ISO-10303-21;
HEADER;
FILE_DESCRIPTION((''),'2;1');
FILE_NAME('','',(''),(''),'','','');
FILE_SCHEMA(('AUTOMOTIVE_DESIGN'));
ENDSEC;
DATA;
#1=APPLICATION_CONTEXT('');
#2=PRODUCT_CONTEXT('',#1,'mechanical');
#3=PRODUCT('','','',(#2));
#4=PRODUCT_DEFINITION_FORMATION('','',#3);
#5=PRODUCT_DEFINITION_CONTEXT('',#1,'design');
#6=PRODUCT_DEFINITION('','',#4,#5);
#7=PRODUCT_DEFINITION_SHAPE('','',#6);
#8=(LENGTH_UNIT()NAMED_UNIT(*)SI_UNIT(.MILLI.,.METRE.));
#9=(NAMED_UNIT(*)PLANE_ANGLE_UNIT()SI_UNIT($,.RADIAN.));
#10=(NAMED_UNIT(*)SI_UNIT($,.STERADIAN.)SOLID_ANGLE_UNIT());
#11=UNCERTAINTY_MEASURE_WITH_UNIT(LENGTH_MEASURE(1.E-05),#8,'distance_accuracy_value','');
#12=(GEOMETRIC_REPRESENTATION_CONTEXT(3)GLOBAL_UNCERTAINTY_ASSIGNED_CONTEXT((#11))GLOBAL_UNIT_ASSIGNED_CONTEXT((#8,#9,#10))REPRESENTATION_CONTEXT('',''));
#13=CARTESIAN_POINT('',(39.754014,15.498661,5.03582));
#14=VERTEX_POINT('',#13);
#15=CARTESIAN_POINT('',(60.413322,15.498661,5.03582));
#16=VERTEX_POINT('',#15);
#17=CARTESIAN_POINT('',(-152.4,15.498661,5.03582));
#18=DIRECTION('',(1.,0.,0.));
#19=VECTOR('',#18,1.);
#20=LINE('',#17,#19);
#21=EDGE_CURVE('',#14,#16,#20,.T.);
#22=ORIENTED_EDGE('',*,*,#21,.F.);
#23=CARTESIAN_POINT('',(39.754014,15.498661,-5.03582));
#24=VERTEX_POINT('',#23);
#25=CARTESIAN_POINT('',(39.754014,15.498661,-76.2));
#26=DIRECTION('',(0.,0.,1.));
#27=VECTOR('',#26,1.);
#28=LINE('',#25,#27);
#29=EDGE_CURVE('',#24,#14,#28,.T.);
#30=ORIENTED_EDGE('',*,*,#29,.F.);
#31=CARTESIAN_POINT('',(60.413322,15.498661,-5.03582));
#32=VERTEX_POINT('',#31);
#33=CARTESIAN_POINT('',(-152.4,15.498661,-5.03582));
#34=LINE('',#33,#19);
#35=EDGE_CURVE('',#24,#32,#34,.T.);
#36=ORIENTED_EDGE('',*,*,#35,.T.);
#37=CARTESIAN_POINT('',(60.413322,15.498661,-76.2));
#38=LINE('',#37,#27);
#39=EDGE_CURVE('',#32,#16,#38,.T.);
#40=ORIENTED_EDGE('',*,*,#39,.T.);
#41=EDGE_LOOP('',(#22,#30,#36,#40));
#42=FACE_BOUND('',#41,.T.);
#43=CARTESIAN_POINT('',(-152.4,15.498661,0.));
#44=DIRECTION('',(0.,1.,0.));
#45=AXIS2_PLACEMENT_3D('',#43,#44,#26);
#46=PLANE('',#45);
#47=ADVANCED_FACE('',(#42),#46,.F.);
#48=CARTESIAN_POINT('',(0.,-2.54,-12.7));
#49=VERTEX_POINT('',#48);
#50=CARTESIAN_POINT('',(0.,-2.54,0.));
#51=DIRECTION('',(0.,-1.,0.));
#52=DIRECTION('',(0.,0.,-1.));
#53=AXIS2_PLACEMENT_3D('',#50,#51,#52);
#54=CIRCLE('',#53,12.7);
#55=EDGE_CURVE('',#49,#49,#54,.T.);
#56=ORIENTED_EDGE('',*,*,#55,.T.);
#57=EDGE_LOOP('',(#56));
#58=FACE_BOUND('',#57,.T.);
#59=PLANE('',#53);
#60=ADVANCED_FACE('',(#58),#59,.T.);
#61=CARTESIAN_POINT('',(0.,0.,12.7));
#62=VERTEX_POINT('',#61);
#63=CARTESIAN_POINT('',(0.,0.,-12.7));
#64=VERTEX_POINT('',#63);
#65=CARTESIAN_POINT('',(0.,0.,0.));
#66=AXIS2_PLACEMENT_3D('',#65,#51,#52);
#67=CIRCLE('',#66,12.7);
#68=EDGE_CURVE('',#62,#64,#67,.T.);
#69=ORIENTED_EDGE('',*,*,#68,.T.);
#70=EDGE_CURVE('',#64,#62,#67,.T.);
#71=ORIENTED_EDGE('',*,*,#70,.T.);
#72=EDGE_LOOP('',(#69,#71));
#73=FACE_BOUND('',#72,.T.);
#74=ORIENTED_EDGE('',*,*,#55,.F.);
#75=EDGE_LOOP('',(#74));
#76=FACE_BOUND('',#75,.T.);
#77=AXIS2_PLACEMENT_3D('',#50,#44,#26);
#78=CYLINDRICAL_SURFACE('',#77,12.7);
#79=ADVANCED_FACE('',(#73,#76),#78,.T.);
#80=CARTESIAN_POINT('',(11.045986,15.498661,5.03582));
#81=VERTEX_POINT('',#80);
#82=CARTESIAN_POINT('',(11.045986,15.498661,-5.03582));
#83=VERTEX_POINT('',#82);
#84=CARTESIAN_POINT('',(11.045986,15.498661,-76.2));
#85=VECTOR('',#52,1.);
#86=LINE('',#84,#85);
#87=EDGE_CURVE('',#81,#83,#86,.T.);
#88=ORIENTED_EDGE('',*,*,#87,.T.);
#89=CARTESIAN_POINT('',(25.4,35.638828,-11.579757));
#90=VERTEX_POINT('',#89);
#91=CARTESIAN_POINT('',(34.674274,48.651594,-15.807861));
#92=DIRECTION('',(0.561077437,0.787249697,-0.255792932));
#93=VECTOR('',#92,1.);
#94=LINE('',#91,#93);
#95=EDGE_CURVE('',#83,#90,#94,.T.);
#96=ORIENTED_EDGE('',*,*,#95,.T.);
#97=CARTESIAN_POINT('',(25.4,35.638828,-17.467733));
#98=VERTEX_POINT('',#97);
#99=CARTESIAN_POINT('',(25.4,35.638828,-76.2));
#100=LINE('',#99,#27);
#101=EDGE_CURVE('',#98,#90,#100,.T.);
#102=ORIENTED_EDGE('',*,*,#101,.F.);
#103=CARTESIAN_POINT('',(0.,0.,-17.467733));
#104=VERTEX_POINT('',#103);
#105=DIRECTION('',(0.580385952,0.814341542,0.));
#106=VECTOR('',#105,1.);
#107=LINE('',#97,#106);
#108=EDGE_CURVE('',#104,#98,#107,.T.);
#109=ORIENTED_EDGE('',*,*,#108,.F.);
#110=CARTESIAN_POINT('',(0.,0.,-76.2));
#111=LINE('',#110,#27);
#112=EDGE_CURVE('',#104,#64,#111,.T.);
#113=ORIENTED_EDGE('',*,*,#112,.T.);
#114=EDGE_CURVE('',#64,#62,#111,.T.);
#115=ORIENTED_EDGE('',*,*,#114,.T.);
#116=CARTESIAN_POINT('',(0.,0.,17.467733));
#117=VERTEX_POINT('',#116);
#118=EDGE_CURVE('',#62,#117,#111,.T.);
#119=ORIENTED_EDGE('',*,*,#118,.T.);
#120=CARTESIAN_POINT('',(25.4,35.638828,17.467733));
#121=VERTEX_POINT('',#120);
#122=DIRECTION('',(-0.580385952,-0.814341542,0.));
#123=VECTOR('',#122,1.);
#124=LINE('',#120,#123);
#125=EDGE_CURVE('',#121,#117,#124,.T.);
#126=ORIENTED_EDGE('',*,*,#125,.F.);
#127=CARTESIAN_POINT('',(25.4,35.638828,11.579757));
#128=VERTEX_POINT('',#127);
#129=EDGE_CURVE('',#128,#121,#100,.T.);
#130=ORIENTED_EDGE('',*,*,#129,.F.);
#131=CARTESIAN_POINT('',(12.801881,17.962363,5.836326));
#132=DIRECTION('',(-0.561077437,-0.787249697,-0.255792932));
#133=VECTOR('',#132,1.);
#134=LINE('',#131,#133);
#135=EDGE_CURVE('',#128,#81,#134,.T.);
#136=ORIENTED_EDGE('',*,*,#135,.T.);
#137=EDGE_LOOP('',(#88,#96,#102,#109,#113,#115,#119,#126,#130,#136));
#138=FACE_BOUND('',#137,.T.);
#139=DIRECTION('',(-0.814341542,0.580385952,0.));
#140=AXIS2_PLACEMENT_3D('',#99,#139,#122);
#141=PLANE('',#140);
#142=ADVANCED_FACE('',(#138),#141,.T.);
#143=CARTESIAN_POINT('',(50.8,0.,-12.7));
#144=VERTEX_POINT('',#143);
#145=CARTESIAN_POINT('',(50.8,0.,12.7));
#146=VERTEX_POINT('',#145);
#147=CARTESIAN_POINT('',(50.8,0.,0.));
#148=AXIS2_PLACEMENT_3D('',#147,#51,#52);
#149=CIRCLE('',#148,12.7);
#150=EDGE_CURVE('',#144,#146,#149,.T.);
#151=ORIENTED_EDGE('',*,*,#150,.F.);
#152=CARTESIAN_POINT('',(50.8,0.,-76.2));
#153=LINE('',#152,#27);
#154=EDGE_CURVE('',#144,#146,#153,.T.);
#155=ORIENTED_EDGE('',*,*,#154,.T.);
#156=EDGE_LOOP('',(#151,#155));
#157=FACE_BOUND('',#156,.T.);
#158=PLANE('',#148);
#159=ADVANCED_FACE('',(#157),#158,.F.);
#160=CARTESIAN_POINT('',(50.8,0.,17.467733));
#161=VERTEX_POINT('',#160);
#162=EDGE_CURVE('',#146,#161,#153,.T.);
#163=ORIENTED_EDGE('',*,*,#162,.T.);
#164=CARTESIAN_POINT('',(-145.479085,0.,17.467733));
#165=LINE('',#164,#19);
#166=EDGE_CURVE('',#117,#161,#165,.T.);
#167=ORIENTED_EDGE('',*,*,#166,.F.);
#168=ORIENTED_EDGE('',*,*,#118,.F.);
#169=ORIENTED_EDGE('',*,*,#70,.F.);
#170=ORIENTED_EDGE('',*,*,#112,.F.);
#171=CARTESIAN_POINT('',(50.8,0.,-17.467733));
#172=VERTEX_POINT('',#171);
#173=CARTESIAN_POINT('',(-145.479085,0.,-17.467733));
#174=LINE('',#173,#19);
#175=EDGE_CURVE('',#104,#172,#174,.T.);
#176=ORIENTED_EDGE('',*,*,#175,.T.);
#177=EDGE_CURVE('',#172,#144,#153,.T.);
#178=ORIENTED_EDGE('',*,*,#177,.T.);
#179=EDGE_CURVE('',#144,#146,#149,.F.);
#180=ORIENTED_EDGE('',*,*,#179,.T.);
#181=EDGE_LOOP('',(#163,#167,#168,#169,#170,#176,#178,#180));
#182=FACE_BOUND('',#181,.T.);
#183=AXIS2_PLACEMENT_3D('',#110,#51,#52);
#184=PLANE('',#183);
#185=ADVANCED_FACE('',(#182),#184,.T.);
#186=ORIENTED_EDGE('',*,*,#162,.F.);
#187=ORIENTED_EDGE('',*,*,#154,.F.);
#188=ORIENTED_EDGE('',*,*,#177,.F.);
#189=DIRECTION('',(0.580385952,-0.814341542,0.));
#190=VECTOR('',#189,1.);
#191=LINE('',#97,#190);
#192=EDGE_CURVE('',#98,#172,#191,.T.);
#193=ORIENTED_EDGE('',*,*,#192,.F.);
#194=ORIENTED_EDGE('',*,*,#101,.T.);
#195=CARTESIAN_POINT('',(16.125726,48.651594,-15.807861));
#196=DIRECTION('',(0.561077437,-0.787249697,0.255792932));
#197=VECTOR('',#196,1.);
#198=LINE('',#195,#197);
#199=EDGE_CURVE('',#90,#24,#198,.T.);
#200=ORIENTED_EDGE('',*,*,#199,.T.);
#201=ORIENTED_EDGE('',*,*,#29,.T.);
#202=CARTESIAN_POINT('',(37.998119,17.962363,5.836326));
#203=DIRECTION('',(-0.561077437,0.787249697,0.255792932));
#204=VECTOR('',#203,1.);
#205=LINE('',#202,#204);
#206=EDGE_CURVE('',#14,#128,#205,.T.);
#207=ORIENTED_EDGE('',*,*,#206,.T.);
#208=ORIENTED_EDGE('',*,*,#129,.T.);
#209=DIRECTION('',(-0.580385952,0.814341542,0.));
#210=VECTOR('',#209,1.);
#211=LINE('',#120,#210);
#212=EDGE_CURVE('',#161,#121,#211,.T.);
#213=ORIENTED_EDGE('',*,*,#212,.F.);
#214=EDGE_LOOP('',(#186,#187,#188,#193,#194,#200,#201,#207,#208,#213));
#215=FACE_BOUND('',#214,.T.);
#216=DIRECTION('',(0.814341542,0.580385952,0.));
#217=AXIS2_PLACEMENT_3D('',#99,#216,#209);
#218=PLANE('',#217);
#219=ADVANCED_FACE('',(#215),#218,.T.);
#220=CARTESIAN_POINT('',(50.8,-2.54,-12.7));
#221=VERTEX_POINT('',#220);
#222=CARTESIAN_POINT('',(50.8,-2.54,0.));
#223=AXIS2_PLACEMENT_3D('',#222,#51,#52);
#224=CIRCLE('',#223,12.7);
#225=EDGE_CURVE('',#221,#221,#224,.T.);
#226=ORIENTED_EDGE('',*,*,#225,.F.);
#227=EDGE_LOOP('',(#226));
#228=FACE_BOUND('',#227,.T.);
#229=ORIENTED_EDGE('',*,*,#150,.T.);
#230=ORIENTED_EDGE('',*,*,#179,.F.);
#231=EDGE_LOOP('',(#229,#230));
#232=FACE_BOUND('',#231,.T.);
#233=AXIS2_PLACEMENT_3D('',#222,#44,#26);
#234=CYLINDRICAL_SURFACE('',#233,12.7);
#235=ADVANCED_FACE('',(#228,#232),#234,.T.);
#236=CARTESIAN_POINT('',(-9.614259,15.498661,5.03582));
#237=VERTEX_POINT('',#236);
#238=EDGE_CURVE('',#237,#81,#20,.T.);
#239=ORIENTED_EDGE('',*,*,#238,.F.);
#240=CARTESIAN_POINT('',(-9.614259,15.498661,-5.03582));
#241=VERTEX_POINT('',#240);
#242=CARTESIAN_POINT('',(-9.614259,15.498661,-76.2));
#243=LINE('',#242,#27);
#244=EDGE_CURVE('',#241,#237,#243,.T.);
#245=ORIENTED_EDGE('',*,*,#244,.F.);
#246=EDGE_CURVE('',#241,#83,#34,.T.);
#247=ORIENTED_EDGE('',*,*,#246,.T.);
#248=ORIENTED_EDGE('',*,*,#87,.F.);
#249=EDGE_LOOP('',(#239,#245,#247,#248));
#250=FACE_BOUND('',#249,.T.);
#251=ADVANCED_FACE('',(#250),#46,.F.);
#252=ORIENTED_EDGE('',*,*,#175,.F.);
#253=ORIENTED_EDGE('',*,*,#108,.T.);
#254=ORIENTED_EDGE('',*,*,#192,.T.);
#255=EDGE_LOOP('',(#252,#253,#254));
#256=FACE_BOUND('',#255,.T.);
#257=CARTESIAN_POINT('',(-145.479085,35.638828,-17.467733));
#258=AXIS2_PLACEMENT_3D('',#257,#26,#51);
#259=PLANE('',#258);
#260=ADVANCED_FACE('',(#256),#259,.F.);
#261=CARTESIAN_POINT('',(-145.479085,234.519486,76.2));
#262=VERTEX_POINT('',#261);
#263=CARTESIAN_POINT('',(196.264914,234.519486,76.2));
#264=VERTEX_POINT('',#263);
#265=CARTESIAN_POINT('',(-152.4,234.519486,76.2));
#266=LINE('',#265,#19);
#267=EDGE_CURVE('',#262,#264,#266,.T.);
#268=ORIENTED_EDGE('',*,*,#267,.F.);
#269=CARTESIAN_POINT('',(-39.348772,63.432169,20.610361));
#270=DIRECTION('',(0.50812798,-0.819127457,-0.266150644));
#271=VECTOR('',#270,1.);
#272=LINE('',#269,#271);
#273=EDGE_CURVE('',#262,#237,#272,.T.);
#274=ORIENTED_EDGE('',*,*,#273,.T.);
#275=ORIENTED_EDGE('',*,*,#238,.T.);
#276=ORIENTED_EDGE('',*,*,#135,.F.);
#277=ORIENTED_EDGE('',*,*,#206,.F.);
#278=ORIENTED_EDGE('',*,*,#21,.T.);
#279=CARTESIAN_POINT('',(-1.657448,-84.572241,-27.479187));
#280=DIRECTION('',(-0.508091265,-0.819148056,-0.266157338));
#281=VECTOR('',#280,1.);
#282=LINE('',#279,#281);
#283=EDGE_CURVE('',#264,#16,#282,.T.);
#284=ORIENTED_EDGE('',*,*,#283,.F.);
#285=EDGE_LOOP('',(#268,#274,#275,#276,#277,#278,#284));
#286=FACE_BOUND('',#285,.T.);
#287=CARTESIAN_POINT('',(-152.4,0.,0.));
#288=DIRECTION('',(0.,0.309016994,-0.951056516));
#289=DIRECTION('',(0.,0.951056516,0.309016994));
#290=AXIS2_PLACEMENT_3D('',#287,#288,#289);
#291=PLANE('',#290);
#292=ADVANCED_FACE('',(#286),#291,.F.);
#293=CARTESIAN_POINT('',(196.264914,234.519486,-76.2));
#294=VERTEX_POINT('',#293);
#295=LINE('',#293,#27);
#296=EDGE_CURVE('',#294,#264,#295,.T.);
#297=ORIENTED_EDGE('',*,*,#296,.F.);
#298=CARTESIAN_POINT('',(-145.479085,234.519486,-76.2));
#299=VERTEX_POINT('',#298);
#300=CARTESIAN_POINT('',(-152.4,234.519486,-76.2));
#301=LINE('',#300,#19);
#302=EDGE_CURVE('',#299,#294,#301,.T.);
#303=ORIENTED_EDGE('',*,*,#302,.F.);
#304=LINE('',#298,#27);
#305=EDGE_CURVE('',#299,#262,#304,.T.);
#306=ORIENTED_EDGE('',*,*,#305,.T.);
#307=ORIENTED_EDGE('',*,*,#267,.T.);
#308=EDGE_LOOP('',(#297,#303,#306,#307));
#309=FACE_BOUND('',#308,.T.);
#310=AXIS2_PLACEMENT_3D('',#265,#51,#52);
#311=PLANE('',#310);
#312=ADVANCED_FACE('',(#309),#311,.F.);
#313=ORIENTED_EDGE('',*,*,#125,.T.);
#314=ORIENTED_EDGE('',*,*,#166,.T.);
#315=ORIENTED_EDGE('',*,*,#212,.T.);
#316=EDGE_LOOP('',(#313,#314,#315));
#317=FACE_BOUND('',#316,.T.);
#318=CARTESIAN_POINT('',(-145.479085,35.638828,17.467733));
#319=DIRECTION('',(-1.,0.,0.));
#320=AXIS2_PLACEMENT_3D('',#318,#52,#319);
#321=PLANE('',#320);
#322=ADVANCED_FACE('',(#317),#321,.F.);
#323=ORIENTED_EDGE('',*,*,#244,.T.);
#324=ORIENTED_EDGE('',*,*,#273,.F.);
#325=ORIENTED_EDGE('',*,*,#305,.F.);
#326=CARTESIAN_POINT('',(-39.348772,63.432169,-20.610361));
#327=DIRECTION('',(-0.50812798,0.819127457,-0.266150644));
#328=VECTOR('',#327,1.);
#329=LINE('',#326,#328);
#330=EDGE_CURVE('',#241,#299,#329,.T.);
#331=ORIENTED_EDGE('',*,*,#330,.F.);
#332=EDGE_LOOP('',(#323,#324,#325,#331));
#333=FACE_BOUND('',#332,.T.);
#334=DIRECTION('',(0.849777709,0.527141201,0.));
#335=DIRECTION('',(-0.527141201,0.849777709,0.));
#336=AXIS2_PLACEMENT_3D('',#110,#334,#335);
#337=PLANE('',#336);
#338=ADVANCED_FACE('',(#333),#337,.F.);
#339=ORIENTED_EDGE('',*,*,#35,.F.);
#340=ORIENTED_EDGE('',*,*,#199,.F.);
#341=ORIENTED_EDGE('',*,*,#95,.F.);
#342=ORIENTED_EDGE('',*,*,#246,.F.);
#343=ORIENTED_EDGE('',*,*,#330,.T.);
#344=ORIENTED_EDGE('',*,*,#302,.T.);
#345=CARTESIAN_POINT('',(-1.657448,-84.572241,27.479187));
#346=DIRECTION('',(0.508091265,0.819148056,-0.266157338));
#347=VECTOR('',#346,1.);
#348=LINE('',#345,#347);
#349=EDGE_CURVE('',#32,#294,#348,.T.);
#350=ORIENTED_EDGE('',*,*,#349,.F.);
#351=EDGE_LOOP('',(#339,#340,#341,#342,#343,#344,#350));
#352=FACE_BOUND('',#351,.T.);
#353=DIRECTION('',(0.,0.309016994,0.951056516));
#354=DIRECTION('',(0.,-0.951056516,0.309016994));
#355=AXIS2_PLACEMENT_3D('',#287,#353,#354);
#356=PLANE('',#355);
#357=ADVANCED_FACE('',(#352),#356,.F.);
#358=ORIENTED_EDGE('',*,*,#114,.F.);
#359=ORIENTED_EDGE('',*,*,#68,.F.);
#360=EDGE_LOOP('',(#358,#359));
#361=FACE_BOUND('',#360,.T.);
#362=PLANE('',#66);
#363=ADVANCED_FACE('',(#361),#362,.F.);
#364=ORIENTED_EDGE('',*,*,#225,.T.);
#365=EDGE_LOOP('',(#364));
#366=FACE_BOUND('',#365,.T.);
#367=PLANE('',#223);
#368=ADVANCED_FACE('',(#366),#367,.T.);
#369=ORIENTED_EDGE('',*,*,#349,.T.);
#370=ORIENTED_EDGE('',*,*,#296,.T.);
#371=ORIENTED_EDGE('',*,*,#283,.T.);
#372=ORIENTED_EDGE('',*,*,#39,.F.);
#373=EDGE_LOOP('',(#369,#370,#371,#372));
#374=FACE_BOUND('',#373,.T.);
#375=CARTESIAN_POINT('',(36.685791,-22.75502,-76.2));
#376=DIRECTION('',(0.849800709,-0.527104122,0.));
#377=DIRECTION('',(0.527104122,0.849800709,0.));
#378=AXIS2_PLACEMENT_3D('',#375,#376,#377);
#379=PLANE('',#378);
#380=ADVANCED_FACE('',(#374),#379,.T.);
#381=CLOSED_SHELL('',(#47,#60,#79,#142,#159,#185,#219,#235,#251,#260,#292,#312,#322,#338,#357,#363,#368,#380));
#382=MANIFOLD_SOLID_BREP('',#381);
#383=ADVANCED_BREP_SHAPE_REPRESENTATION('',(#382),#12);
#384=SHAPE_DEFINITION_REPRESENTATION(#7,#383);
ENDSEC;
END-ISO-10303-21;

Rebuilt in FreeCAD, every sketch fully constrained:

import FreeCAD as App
import Part
import Sketcher
Q = App.Units.Quantity


def add_polygon(sketch, points):
    """Adds a closed chain of lines whose ends are joined by coincident constraints."""
    first, n = sketch.GeometryCount, len(points)
    for a, b in zip(points, points[1:] + points[:1]):
        sketch.addGeometry(Part.LineSegment(App.Vector(*a, 0), App.Vector(*b, 0)), False)
    for i in range(n):
        sketch.addConstraint(Sketcher.Constraint("Coincident", first + i, 2, first + (i + 1) % n, 1))

doc = App.newDocument("Part")
body = doc.addObject("PartDesign::Body", "Body")

sketch1 = body.newObject("Sketcher::SketchObject", "Sketch")
sketch1.AttachmentSupport = (doc.getObject("XY_Plane"), [""])
sketch1.MapMode = "FlatFace"
add_polygon(sketch1, [(0, 0), (51, 0), (25, 36)])
sketch1.addConstraint([
    Sketcher.Constraint("Horizontal", 0),
    Sketcher.Constraint("Coincident", 2, 2, -1, 1),
    Sketcher.Constraint("Equal", 1, 2),
    Sketcher.Constraint("DistanceX", 0, 1, 0, 2, Q("2 in")),
    Sketcher.Constraint("Distance", 1, 43.763981),
])
pad1 = body.newObject("PartDesign::Pad", "Pad")
pad1.Profile = sketch1
pad1.Length = Q("6 in")
pad1.Midplane = True

sketch2 = body.newObject("Sketcher::SketchObject", "Sketch001")
sketch2.AttachmentSupport = (doc.getObject("YZ_Plane"), [""])
sketch2.MapMode = "FlatFace"
add_polygon(sketch2, [(235, -76), (305, -76), (305, 76), (235, 76), (15, 5), (15, -5)])
sketch2.addConstraint([
    Sketcher.Constraint("Horizontal", 0),
    Sketcher.Constraint("Vertical", 1),
    Sketcher.Constraint("Horizontal", 2),
    Sketcher.Constraint("Vertical", 4),
    Sketcher.Constraint("Symmetric", 2, 2, 5, 2, -1),
    Sketcher.Constraint("Equal", 3, 5),
    Sketcher.Constraint("DistanceY", 1, 1, 1, 2, Q("6 in")),
    Sketcher.Constraint("DistanceX", -1, 1, 0, 2, Q("12 in")),
    Sketcher.Constraint("Angle", 3, Q("-162 deg")),
    Sketcher.Constraint("DistanceY", 4, 2, 4, 1, 10.07164),
    Sketcher.Constraint("DistanceX", 0, 1, 0, 2, 70.280514),
])
pad2 = body.newObject("PartDesign::Pad", "Pad001")
pad2.Profile = sketch2
pad2.Type = "TwoLengths"
pad2.Length = Q("8 in")
pad2.Length2 = Q("6 in")

sketch3 = body.newObject("Sketcher::SketchObject", "Sketch002")
sketch3.AttachmentSupport = (doc.getObject("XY_Plane"), [""])
sketch3.MapMode = "FlatFace"
sketch3.AttachmentOffset = App.Placement(App.Vector(0, 0, 3 * 25.4), App.Rotation())
add_polygon(sketch3, [(-145, 235), (-152, 235), (-152, 15), (-10, 15)])
add_polygon(sketch3, [(196, 235), (60, 15), (203, 15), (203, 235)])
sketch3.addConstraint([
    Sketcher.Constraint("Horizontal", 0),
    Sketcher.Constraint("Vertical", 1),
    Sketcher.Constraint("Horizontal", 2),
    Sketcher.Constraint("Horizontal", 5),
    Sketcher.Constraint("Vertical", 6),
    Sketcher.Constraint("Horizontal", 7),
    Sketcher.Constraint("Horizontal", 2, 2, 4, 2),
    Sketcher.Constraint("Horizontal", 3, 2, 6, 2),
    Sketcher.Constraint("DistanceX", 0, 2, -1, 1, Q("6 in")),
    Sketcher.Constraint("DistanceX", -1, 1, 5, 2, Q("8 in")),
    Sketcher.Constraint("Angle", 4, Q("-121.81 deg")),
    Sketcher.Constraint("DistanceX", 2, 1, 2, 2, 142.785741),
    Sketcher.Constraint("DistanceX", 3, 2, 7, 2, 341.743999),
    Sketcher.Constraint("DistanceX", 0, 2, 0, 1, 6.920915),
    Sketcher.Constraint("DistanceX", 5, 1, 5, 2, 142.786678),
    Sketcher.Constraint("DistanceY", -1, 1, 1, 2, 15.498661),
])
pocket1 = body.newObject("PartDesign::Pocket", "Pocket")
pocket1.Profile = sketch3
pocket1.Type = "ThroughAll"

sketch4 = body.newObject("Sketcher::SketchObject", "Sketch003")
sketch4.AttachmentSupport = (doc.getObject("YZ_Plane"), [""])
sketch4.MapMode = "FlatFace"
sketch4.AttachmentOffset = App.Placement(App.Vector(0, 0, 8 * 25.4), App.Rotation())
add_polygon(sketch4, [(305, 76), (235, 76), (235, -76), (305, -76)])
sketch4.addConstraint([
    Sketcher.Constraint("Horizontal", 0),
    Sketcher.Constraint("Vertical", 1),
    Sketcher.Constraint("Horizontal", 2),
    Sketcher.Constraint("Vertical", 3),
    Sketcher.Constraint("DistanceY", 1, 2, 1, 1, Q("6 in")),
    Sketcher.Constraint("DistanceY", -1, 1, 0, 2, Q("3 in")),
    Sketcher.Constraint("DistanceX", -1, 1, 2, 2, Q("12 in")),
    Sketcher.Constraint("DistanceX", 0, 2, 0, 1, 70.280514),
])
pocket2 = body.newObject("PartDesign::Pocket", "Pocket001")
pocket2.Profile = sketch4
pocket2.Type = "ThroughAll"

sketch5 = body.newObject("Sketcher::SketchObject", "Sketch004")
sketch5.AttachmentSupport = (doc.getObject("XZ_Plane"), [""])
sketch5.MapMode = "FlatFace"
sketch5.addGeometry([
    Part.Circle(App.Vector(0, 0, 0), App.Vector(0, 0, 1), 13),
    Part.Circle(App.Vector(51, 0, 0), App.Vector(0, 0, 1), 13),
], False)
sketch5.addConstraint([
    Sketcher.Constraint("Coincident", 0, 3, -1, 1),
    Sketcher.Constraint("Equal", 0, 1),
    Sketcher.Constraint("PointOnObject", 1, 3, -1),
    Sketcher.Constraint("Diameter", 0, Q("1 in")),
    Sketcher.Constraint("DistanceX", -1, 1, 1, 3, Q("2 in")),
])
pad3 = body.newObject("PartDesign::Pad", "Pad002")
pad3.Profile = sketch5
pad3.Length = Q("0.1 in")

sketch6 = body.newObject("Sketcher::SketchObject", "Sketch005")
sketch6.AttachmentSupport = (doc.getObject("YZ_Plane"), [""])
sketch6.MapMode = "FlatFace"
sketch6.AttachmentOffset = App.Placement(App.Vector(0, 0, 2 * 25.4), App.Rotation())
add_polygon(sketch6, [(36, 76), (0, 76), (0, 17), (36, 17)])
add_polygon(sketch6, [(36, -17), (0, -17), (0, -76), (36, -76)])
sketch6.addConstraint([
    Sketcher.Constraint("Horizontal", 0),
    Sketcher.Constraint("Vertical", 1),
    Sketcher.Constraint("Horizontal", 2),
    Sketcher.Constraint("Vertical", 3),
    Sketcher.Constraint("Horizontal", 4),
    Sketcher.Constraint("Vertical", 5),
    Sketcher.Constraint("Horizontal", 6),
    Sketcher.Constraint("Vertical", 7),
    Sketcher.Constraint("Symmetric", 1, 2, 4, 2, -1, 1),
    Sketcher.Constraint("Symmetric", 0, 2, 5, 2, -1),
    Sketcher.Constraint("Vertical", 3, 2, 6, 2),
    Sketcher.Constraint("DistanceY", -1, 1, 0, 2, Q("3 in")),
    Sketcher.Constraint("DistanceX", 0, 2, 0, 1, 35.638828),
    Sketcher.Constraint("DistanceY", 1, 2, 1, 1, 58.732267),
])
pocket3 = body.newObject("PartDesign::Pocket", "Pocket002")
pocket3.Profile = sketch6
pocket3.Type = "ThroughAll"

doc.recompute()
